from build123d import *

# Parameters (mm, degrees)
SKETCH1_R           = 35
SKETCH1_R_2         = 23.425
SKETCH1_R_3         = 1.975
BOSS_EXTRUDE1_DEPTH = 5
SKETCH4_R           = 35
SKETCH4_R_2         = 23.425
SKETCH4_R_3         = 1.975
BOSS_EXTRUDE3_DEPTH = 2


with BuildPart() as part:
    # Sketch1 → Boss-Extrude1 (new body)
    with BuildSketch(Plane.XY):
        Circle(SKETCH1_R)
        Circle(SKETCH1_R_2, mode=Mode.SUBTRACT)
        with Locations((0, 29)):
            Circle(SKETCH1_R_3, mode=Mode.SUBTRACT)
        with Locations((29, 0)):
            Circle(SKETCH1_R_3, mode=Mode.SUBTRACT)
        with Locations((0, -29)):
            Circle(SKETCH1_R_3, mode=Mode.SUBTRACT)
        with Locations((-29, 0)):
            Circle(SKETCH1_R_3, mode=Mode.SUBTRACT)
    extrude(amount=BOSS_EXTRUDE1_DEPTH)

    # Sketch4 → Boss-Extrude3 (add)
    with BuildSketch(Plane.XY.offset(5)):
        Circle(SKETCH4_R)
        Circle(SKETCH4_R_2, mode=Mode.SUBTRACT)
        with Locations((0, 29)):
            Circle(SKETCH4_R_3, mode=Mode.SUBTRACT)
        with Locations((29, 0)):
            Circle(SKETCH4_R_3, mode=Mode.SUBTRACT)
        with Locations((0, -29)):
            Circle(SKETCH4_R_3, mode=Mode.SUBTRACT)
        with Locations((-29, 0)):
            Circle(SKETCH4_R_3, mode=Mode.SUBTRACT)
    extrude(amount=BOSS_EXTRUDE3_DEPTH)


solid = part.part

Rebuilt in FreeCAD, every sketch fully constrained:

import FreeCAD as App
import Part
import Sketcher
Q = App.Units.Quantity

doc = App.newDocument("Part")
body = doc.addObject("PartDesign::Body", "Body")

sketch1 = body.newObject("Sketcher::SketchObject", "Sketch")
sketch1.AttachmentSupport = (doc.getObject("XY_Plane"), [""])
sketch1.MapMode = "FlatFace"
sketch1.addGeometry([
    Part.Circle(App.Vector(0, 0, 0), App.Vector(0, 0, 1), 35),
    Part.Circle(App.Vector(0, -29, 0), App.Vector(0, 0, 1), 1.975),
    Part.Circle(App.Vector(-29, 0, 0), App.Vector(0, 0, 1), 1.975),
    Part.Circle(App.Vector(0, 0, 0), App.Vector(0, 0, 1), 23.425),
    Part.Circle(App.Vector(29, 0, 0), App.Vector(0, 0, 1), 1.975),
    Part.Circle(App.Vector(0, 29, 0), App.Vector(0, 0, 1), 1.975),
], False)
sketch1.addConstraint([
    Sketcher.Constraint("Coincident", 0, 3, -1, 1),
    Sketcher.Constraint("Coincident", 3, 3, -1, 1),
    Sketcher.Constraint("Equal", 1, 2),
    Sketcher.Constraint("Equal", 2, 4),
    Sketcher.Constraint("Equal", 4, 5),
    Sketcher.Constraint("Symmetric", 2, 3, 4, 3, -1, 1),
    Sketcher.Constraint("Symmetric", 1, 3, 5, 3, -1, 1),
    Sketcher.Constraint("PointOnObject", 1, 3, -2),
    Sketcher.Constraint("PointOnObject", 2, 3, -1),
    Sketcher.Constraint("Diameter", 0, Q("70 mm")),
    Sketcher.Constraint("Diameter", 1, Q("3.95 mm")),
    Sketcher.Constraint("Diameter", 3, Q("46.85 mm")),
    Sketcher.Constraint("DistanceY", 1, 3, -1, 1, Q("29 mm")),
    Sketcher.Constraint("DistanceX", 2, 3, -1, 1, Q("29 mm")),
])
pad1 = body.newObject("PartDesign::Pad", "Pad")
pad1.Profile = sketch1
pad1.Length = 5

sketch2 = body.newObject("Sketcher::SketchObject", "Sketch001")
sketch2.AttachmentSupport = (doc.getObject("XY_Plane"), [""])
sketch2.MapMode = "FlatFace"
sketch2.AttachmentOffset = App.Placement(App.Vector(0, 0, 5), App.Rotation())
sketch2.addGeometry([
    Part.Circle(App.Vector(0, 0, 0), App.Vector(0, 0, 1), 35),
    Part.Circle(App.Vector(0, -29, 0), App.Vector(0, 0, 1), 1.975),
    Part.Circle(App.Vector(-29, 0, 0), App.Vector(0, 0, 1), 1.975),
    Part.Circle(App.Vector(0, 0, 0), App.Vector(0, 0, 1), 23.425),
    Part.Circle(App.Vector(29, 0, 0), App.Vector(0, 0, 1), 1.975),
    Part.Circle(App.Vector(0, 29, 0), App.Vector(0, 0, 1), 1.975),
], False)
sketch2.addConstraint([
    Sketcher.Constraint("Coincident", 0, 3, -1, 1),
    Sketcher.Constraint("Coincident", 3, 3, -1, 1),
    Sketcher.Constraint("Equal", 1, 2),
    Sketcher.Constraint("Equal", 2, 4),
    Sketcher.Constraint("Equal", 4, 5),
    Sketcher.Constraint("Symmetric", 2, 3, 4, 3, -1, 1),
    Sketcher.Constraint("Symmetric", 1, 3, 5, 3, -1, 1),
    Sketcher.Constraint("PointOnObject", 1, 3, -2),
    Sketcher.Constraint("PointOnObject", 2, 3, -1),
    Sketcher.Constraint("Diameter", 0, Q("70 mm")),
    Sketcher.Constraint("Diameter", 1, Q("3.95 mm")),
    Sketcher.Constraint("Diameter", 3, Q("46.85 mm")),
    Sketcher.Constraint("DistanceY", 1, 3, -1, 1, Q("29 mm")),
    Sketcher.Constraint("DistanceX", 2, 3, -1, 1, Q("29 mm")),
])
pad2 = body.newObject("PartDesign::Pad", "Pad001")
pad2.Profile = sketch2
pad2.Length = 2

doc.recompute()
